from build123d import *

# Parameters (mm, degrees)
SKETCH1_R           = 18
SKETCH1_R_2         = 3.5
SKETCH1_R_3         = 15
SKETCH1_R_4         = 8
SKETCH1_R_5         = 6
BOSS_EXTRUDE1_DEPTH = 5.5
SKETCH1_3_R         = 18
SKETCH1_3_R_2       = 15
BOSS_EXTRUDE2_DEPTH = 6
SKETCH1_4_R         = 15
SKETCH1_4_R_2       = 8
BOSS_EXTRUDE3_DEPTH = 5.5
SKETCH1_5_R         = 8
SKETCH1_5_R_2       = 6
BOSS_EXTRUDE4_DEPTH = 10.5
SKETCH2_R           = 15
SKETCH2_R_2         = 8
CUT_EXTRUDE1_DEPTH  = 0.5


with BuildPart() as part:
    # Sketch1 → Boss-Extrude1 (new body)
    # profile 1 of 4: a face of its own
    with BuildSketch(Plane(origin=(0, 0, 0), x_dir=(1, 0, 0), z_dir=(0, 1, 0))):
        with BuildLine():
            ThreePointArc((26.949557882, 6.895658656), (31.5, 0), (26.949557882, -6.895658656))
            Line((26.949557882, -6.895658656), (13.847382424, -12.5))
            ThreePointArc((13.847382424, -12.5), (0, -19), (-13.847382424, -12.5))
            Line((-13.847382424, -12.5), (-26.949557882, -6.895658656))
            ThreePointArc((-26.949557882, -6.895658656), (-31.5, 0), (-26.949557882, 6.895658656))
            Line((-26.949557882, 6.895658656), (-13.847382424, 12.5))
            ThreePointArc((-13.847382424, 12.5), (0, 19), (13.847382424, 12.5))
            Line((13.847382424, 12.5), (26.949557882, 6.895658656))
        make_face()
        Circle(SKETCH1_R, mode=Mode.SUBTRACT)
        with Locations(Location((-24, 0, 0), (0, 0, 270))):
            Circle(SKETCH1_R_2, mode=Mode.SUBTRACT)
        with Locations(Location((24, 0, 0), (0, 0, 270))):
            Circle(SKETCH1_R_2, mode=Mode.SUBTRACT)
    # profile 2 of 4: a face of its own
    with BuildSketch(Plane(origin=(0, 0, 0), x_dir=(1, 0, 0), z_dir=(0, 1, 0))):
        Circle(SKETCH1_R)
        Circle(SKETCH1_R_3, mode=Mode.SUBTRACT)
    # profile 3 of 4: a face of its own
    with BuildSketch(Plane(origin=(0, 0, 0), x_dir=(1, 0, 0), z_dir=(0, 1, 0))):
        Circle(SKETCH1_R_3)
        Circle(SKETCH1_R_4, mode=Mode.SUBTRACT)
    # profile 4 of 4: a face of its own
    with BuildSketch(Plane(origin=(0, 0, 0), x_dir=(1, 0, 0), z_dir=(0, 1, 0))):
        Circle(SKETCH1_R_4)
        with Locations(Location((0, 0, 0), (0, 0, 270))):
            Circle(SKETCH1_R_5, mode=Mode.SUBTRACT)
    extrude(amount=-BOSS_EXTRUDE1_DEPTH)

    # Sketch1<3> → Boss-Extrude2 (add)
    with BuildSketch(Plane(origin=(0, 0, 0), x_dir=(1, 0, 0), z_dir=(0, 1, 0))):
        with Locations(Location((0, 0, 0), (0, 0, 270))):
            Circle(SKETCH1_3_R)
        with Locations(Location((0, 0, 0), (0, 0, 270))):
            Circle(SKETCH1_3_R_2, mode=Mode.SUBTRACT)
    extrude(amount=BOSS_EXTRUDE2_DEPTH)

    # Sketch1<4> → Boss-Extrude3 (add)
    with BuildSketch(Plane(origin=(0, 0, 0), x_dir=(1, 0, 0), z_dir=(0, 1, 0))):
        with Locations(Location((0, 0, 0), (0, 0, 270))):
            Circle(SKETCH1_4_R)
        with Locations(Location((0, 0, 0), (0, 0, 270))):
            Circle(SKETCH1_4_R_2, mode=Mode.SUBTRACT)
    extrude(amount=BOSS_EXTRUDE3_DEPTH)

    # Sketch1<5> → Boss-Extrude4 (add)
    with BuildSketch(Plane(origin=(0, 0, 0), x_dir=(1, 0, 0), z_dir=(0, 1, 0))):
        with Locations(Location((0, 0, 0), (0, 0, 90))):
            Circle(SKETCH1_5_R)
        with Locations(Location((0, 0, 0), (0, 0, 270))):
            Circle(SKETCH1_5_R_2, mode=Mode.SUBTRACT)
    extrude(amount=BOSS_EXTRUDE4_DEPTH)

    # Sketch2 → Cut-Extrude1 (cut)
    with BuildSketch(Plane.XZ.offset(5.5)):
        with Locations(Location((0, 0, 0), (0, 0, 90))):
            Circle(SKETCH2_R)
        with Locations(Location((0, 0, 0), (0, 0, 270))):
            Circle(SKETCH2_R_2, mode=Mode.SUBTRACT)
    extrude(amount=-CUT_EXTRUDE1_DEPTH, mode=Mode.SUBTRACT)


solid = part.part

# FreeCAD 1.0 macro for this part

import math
import FreeCAD as App
import Part
import Sketcher

doc = App.newDocument("Part")
params = doc.addObject("Spreadsheet::Sheet", "Params")
for row, (alias, value) in enumerate([
    ("sketch1_diameter", "7 mm"),
    ("sketch1_diameter2", "12 mm"),
    ("sketch1_radius", "18 mm"),
    ("sketch1_radius2", "7.5 mm"),
    ("pad1_length", "5.5 mm"),
    ("sketch2_diameter", "36 mm"),
    ("sketch2_diameter2", "30 mm"),
    ("pad2_length", "6 mm"),
    ("sketch3_diameter", "30 mm"),
    ("sketch3_diameter2", "16 mm"),
    ("pad3_length", "5.5 mm"),
    ("sketch4_diameter", "16 mm"),
    ("sketch4_diameter2", "12 mm"),
    ("pad4_length", "10.5 mm"),
    ("sketch5_diameter", "30 mm"),
    ("sketch5_diameter2", "16 mm"),
    ("pocket1_length", "0.5 mm"),
], start=1):
    params.set(f"A{row}", alias)
    params.set(f"B{row}", "=" + value)
    params.setAlias(f"B{row}", alias)

body = doc.addObject("PartDesign::Body", "Body")

# Sketch on XZ plane
sketch1 = body.newObject("Sketcher::SketchObject", "Sketch")
sketch1.AttachmentSupport = (doc.getObject("XZ_Plane"), [""])
sketch1.MapMode = "FlatFace"
sketch1.addGeometry(Part.ArcOfCircle(Part.Circle(App.Vector(24, 0, 0), App.Vector(0, 0, 1), 7.5), math.radians(-67), math.radians(67)), False)
sketch1.addGeometry(Part.LineSegment(App.Vector(26.9, -6.9, 0), App.Vector(13.8, -12.5, 0)), False)
sketch1.addGeometry(Part.ArcOfCircle(Part.Circle(App.Vector(0, -1, 0), App.Vector(0, 0, 1), 18), math.radians(-140), math.radians(-40)), False)
sketch1.addGeometry(Part.LineSegment(App.Vector(-13.8, -12.5, 0), App.Vector(-26.9, -6.9, 0)), False)
sketch1.addGeometry(Part.ArcOfCircle(Part.Circle(App.Vector(-24, 0, 0), App.Vector(0, 0, 1), 7.5), math.radians(113), math.radians(247)), False)
sketch1.addGeometry(Part.LineSegment(App.Vector(-26.9, 6.9, 0), App.Vector(-13.8, 12.5, 0)), False)
sketch1.addGeometry(Part.ArcOfCircle(Part.Circle(App.Vector(0, 1, 0), App.Vector(0, 0, 1), 18), math.radians(40), math.radians(140)), False)
sketch1.addGeometry(Part.LineSegment(App.Vector(13.8, 12.5, 0), App.Vector(26.9, 6.9, 0)), False)
sketch1.addGeometry(Part.Circle(App.Vector(24, 0, 0), App.Vector(0, 0, 1), 3.5), False)
sketch1.addGeometry(Part.Circle(App.Vector(-24, 0, 0), App.Vector(0, 0, 1), 3.5), False)
sketch1.addGeometry(Part.Circle(App.Vector(0, 0, 0), App.Vector(0, 0, 1), 6), False)
sketch1.addConstraint(Sketcher.Constraint("Tangent", 0, 1, 1, 1))
sketch1.addConstraint(Sketcher.Constraint("Coincident", 1, 2, 2, 2))
sketch1.addConstraint(Sketcher.Constraint("Coincident", 2, 1, 3, 1))
sketch1.addConstraint(Sketcher.Constraint("Tangent", 3, 2, 4, 2))
sketch1.addConstraint(Sketcher.Constraint("Tangent", 4, 1, 5, 1))
sketch1.addConstraint(Sketcher.Constraint("Coincident", 5, 2, 6, 2))
sketch1.addConstraint(Sketcher.Constraint("Coincident", 6, 1, 7, 1))
sketch1.addConstraint(Sketcher.Constraint("Tangent", 7, 2, 0, 2))
sketch1.addConstraint(Sketcher.Constraint("Coincident", 10, 3, -1, 1))
sketch1.addConstraint(Sketcher.Constraint("Coincident", 8, 3, 0, 3))
sketch1.addConstraint(Sketcher.Constraint("Coincident", 9, 3, 4, 3))
sketch1.addConstraint(Sketcher.Constraint("Equal", 0, 4))
sketch1.addConstraint(Sketcher.Constraint("Equal", 2, 6))
sketch1.addConstraint(Sketcher.Constraint("Equal", 8, 9))
sketch1.addConstraint(Sketcher.Constraint("Symmetric", 0, 3, 4, 3, -1, 1))
sketch1.addConstraint(Sketcher.Constraint("Symmetric", 2, 3, 6, 3, -1, 1))
sketch1.addConstraint(Sketcher.Constraint("Symmetric", 1, 2, 2, 1, -2))
sketch1.addConstraint(Sketcher.Constraint("Symmetric", 4, 1, 7, 2, -2))
sketch1.addConstraint(Sketcher.Constraint("Parallel", 1, 5))
sketch1.addConstraint(Sketcher.Constraint("Diameter", 8, 7.0))
sketch1.addConstraint(Sketcher.Constraint("Diameter", 10, 12.0))
sketch1.addConstraint(Sketcher.Constraint("Radius", 2, 18.0))
sketch1.addConstraint(Sketcher.Constraint("Radius", 0, 7.5))
sketch1.addConstraint(Sketcher.Constraint("DistanceX", -1, 1, 0, 3, 24.0))
sketch1.addConstraint(Sketcher.Constraint("DistanceY", 2, 3, -1, 1, 1.0))
sketch1.addConstraint(Sketcher.Constraint("DistanceY", 1, 2, -1, 1, 12.5))
sketch1.setExpression("Constraints[19]", "Params.sketch1_diameter")
sketch1.setExpression("Constraints[20]", "Params.sketch1_diameter2")
sketch1.setExpression("Constraints[21]", "Params.sketch1_radius")
sketch1.setExpression("Constraints[22]", "Params.sketch1_radius2")
pad1 = body.newObject("PartDesign::Pad", "Pad")
pad1.Profile = sketch1
pad1.setExpression("Length", "Params.pad1_length")

# Sketch on XZ plane
sketch2 = body.newObject("Sketcher::SketchObject", "Sketch001")
sketch2.AttachmentSupport = (doc.getObject("XZ_Plane"), [""])
sketch2.MapMode = "FlatFace"
sketch2.addGeometry(Part.Circle(App.Vector(0, 0, 0), App.Vector(0, 0, 1), 18), False)
sketch2.addGeometry(Part.Circle(App.Vector(0, 0, 0), App.Vector(0, 0, 1), 15), False)
sketch2.addConstraint(Sketcher.Constraint("Coincident", 0, 3, -1, 1))
sketch2.addConstraint(Sketcher.Constraint("Coincident", 1, 3, -1, 1))
sketch2.addConstraint(Sketcher.Constraint("Diameter", 0, 36.0))
sketch2.addConstraint(Sketcher.Constraint("Diameter", 1, 30.0))
sketch2.setExpression("Constraints[2]", "Params.sketch2_diameter")
sketch2.setExpression("Constraints[3]", "Params.sketch2_diameter2")
pad2 = body.newObject("PartDesign::Pad", "Pad001")
pad2.Profile = sketch2
pad2.setExpression("Length", "Params.pad2_length")
pad2.Reversed = True

# Sketch on XZ plane
sketch3 = body.newObject("Sketcher::SketchObject", "Sketch002")
sketch3.AttachmentSupport = (doc.getObject("XZ_Plane"), [""])
sketch3.MapMode = "FlatFace"
sketch3.addGeometry(Part.Circle(App.Vector(0, 0, 0), App.Vector(0, 0, 1), 15), False)
sketch3.addGeometry(Part.Circle(App.Vector(0, 0, 0), App.Vector(0, 0, 1), 8), False)
sketch3.addConstraint(Sketcher.Constraint("Coincident", 0, 3, -1, 1))
sketch3.addConstraint(Sketcher.Constraint("Coincident", 1, 3, -1, 1))
sketch3.addConstraint(Sketcher.Constraint("Diameter", 0, 30.0))
sketch3.addConstraint(Sketcher.Constraint("Diameter", 1, 16.0))
sketch3.setExpression("Constraints[2]", "Params.sketch3_diameter")
sketch3.setExpression("Constraints[3]", "Params.sketch3_diameter2")
pad3 = body.newObject("PartDesign::Pad", "Pad002")
pad3.Profile = sketch3
pad3.setExpression("Length", "Params.pad3_length")
pad3.Reversed = True

# Sketch on XZ plane
sketch4 = body.newObject("Sketcher::SketchObject", "Sketch003")
sketch4.AttachmentSupport = (doc.getObject("XZ_Plane"), [""])
sketch4.MapMode = "FlatFace"
sketch4.addGeometry(Part.Circle(App.Vector(0, 0, 0), App.Vector(0, 0, 1), 8), False)
sketch4.addGeometry(Part.Circle(App.Vector(0, 0, 0), App.Vector(0, 0, 1), 6), False)
sketch4.addConstraint(Sketcher.Constraint("Coincident", 0, 3, -1, 1))
sketch4.addConstraint(Sketcher.Constraint("Coincident", 1, 3, -1, 1))
sketch4.addConstraint(Sketcher.Constraint("Diameter", 0, 16.0))
sketch4.addConstraint(Sketcher.Constraint("Diameter", 1, 12.0))
sketch4.setExpression("Constraints[2]", "Params.sketch4_diameter")
sketch4.setExpression("Constraints[3]", "Params.sketch4_diameter2")
pad4 = body.newObject("PartDesign::Pad", "Pad003")
pad4.Profile = sketch4
pad4.setExpression("Length", "Params.pad4_length")
pad4.Reversed = True

# Sketch on XZ plane
sketch5 = body.newObject("Sketcher::SketchObject", "Sketch004")
sketch5.AttachmentSupport = (doc.getObject("XZ_Plane"), [""])
sketch5.MapMode = "FlatFace"
sketch5.AttachmentOffset = App.Placement(App.Vector(0, 0, 5.5), App.Rotation())
sketch5.addGeometry(Part.Circle(App.Vector(0, 0, 0), App.Vector(0, 0, 1), 15), False)
sketch5.addGeometry(Part.Circle(App.Vector(0, 0, 0), App.Vector(0, 0, 1), 8), False)
sketch5.addConstraint(Sketcher.Constraint("Coincident", 0, 3, -1, 1))
sketch5.addConstraint(Sketcher.Constraint("Coincident", 1, 3, -1, 1))
sketch5.addConstraint(Sketcher.Constraint("Diameter", 0, 30.0))
sketch5.addConstraint(Sketcher.Constraint("Diameter", 1, 16.0))
sketch5.setExpression("Constraints[2]", "Params.sketch5_diameter")
sketch5.setExpression("Constraints[3]", "Params.sketch5_diameter2")
pocket1 = body.newObject("PartDesign::Pocket", "Pocket")
pocket1.Profile = sketch5
pocket1.setExpression("Length", "Params.pocket1_length")

doc.recompute()
